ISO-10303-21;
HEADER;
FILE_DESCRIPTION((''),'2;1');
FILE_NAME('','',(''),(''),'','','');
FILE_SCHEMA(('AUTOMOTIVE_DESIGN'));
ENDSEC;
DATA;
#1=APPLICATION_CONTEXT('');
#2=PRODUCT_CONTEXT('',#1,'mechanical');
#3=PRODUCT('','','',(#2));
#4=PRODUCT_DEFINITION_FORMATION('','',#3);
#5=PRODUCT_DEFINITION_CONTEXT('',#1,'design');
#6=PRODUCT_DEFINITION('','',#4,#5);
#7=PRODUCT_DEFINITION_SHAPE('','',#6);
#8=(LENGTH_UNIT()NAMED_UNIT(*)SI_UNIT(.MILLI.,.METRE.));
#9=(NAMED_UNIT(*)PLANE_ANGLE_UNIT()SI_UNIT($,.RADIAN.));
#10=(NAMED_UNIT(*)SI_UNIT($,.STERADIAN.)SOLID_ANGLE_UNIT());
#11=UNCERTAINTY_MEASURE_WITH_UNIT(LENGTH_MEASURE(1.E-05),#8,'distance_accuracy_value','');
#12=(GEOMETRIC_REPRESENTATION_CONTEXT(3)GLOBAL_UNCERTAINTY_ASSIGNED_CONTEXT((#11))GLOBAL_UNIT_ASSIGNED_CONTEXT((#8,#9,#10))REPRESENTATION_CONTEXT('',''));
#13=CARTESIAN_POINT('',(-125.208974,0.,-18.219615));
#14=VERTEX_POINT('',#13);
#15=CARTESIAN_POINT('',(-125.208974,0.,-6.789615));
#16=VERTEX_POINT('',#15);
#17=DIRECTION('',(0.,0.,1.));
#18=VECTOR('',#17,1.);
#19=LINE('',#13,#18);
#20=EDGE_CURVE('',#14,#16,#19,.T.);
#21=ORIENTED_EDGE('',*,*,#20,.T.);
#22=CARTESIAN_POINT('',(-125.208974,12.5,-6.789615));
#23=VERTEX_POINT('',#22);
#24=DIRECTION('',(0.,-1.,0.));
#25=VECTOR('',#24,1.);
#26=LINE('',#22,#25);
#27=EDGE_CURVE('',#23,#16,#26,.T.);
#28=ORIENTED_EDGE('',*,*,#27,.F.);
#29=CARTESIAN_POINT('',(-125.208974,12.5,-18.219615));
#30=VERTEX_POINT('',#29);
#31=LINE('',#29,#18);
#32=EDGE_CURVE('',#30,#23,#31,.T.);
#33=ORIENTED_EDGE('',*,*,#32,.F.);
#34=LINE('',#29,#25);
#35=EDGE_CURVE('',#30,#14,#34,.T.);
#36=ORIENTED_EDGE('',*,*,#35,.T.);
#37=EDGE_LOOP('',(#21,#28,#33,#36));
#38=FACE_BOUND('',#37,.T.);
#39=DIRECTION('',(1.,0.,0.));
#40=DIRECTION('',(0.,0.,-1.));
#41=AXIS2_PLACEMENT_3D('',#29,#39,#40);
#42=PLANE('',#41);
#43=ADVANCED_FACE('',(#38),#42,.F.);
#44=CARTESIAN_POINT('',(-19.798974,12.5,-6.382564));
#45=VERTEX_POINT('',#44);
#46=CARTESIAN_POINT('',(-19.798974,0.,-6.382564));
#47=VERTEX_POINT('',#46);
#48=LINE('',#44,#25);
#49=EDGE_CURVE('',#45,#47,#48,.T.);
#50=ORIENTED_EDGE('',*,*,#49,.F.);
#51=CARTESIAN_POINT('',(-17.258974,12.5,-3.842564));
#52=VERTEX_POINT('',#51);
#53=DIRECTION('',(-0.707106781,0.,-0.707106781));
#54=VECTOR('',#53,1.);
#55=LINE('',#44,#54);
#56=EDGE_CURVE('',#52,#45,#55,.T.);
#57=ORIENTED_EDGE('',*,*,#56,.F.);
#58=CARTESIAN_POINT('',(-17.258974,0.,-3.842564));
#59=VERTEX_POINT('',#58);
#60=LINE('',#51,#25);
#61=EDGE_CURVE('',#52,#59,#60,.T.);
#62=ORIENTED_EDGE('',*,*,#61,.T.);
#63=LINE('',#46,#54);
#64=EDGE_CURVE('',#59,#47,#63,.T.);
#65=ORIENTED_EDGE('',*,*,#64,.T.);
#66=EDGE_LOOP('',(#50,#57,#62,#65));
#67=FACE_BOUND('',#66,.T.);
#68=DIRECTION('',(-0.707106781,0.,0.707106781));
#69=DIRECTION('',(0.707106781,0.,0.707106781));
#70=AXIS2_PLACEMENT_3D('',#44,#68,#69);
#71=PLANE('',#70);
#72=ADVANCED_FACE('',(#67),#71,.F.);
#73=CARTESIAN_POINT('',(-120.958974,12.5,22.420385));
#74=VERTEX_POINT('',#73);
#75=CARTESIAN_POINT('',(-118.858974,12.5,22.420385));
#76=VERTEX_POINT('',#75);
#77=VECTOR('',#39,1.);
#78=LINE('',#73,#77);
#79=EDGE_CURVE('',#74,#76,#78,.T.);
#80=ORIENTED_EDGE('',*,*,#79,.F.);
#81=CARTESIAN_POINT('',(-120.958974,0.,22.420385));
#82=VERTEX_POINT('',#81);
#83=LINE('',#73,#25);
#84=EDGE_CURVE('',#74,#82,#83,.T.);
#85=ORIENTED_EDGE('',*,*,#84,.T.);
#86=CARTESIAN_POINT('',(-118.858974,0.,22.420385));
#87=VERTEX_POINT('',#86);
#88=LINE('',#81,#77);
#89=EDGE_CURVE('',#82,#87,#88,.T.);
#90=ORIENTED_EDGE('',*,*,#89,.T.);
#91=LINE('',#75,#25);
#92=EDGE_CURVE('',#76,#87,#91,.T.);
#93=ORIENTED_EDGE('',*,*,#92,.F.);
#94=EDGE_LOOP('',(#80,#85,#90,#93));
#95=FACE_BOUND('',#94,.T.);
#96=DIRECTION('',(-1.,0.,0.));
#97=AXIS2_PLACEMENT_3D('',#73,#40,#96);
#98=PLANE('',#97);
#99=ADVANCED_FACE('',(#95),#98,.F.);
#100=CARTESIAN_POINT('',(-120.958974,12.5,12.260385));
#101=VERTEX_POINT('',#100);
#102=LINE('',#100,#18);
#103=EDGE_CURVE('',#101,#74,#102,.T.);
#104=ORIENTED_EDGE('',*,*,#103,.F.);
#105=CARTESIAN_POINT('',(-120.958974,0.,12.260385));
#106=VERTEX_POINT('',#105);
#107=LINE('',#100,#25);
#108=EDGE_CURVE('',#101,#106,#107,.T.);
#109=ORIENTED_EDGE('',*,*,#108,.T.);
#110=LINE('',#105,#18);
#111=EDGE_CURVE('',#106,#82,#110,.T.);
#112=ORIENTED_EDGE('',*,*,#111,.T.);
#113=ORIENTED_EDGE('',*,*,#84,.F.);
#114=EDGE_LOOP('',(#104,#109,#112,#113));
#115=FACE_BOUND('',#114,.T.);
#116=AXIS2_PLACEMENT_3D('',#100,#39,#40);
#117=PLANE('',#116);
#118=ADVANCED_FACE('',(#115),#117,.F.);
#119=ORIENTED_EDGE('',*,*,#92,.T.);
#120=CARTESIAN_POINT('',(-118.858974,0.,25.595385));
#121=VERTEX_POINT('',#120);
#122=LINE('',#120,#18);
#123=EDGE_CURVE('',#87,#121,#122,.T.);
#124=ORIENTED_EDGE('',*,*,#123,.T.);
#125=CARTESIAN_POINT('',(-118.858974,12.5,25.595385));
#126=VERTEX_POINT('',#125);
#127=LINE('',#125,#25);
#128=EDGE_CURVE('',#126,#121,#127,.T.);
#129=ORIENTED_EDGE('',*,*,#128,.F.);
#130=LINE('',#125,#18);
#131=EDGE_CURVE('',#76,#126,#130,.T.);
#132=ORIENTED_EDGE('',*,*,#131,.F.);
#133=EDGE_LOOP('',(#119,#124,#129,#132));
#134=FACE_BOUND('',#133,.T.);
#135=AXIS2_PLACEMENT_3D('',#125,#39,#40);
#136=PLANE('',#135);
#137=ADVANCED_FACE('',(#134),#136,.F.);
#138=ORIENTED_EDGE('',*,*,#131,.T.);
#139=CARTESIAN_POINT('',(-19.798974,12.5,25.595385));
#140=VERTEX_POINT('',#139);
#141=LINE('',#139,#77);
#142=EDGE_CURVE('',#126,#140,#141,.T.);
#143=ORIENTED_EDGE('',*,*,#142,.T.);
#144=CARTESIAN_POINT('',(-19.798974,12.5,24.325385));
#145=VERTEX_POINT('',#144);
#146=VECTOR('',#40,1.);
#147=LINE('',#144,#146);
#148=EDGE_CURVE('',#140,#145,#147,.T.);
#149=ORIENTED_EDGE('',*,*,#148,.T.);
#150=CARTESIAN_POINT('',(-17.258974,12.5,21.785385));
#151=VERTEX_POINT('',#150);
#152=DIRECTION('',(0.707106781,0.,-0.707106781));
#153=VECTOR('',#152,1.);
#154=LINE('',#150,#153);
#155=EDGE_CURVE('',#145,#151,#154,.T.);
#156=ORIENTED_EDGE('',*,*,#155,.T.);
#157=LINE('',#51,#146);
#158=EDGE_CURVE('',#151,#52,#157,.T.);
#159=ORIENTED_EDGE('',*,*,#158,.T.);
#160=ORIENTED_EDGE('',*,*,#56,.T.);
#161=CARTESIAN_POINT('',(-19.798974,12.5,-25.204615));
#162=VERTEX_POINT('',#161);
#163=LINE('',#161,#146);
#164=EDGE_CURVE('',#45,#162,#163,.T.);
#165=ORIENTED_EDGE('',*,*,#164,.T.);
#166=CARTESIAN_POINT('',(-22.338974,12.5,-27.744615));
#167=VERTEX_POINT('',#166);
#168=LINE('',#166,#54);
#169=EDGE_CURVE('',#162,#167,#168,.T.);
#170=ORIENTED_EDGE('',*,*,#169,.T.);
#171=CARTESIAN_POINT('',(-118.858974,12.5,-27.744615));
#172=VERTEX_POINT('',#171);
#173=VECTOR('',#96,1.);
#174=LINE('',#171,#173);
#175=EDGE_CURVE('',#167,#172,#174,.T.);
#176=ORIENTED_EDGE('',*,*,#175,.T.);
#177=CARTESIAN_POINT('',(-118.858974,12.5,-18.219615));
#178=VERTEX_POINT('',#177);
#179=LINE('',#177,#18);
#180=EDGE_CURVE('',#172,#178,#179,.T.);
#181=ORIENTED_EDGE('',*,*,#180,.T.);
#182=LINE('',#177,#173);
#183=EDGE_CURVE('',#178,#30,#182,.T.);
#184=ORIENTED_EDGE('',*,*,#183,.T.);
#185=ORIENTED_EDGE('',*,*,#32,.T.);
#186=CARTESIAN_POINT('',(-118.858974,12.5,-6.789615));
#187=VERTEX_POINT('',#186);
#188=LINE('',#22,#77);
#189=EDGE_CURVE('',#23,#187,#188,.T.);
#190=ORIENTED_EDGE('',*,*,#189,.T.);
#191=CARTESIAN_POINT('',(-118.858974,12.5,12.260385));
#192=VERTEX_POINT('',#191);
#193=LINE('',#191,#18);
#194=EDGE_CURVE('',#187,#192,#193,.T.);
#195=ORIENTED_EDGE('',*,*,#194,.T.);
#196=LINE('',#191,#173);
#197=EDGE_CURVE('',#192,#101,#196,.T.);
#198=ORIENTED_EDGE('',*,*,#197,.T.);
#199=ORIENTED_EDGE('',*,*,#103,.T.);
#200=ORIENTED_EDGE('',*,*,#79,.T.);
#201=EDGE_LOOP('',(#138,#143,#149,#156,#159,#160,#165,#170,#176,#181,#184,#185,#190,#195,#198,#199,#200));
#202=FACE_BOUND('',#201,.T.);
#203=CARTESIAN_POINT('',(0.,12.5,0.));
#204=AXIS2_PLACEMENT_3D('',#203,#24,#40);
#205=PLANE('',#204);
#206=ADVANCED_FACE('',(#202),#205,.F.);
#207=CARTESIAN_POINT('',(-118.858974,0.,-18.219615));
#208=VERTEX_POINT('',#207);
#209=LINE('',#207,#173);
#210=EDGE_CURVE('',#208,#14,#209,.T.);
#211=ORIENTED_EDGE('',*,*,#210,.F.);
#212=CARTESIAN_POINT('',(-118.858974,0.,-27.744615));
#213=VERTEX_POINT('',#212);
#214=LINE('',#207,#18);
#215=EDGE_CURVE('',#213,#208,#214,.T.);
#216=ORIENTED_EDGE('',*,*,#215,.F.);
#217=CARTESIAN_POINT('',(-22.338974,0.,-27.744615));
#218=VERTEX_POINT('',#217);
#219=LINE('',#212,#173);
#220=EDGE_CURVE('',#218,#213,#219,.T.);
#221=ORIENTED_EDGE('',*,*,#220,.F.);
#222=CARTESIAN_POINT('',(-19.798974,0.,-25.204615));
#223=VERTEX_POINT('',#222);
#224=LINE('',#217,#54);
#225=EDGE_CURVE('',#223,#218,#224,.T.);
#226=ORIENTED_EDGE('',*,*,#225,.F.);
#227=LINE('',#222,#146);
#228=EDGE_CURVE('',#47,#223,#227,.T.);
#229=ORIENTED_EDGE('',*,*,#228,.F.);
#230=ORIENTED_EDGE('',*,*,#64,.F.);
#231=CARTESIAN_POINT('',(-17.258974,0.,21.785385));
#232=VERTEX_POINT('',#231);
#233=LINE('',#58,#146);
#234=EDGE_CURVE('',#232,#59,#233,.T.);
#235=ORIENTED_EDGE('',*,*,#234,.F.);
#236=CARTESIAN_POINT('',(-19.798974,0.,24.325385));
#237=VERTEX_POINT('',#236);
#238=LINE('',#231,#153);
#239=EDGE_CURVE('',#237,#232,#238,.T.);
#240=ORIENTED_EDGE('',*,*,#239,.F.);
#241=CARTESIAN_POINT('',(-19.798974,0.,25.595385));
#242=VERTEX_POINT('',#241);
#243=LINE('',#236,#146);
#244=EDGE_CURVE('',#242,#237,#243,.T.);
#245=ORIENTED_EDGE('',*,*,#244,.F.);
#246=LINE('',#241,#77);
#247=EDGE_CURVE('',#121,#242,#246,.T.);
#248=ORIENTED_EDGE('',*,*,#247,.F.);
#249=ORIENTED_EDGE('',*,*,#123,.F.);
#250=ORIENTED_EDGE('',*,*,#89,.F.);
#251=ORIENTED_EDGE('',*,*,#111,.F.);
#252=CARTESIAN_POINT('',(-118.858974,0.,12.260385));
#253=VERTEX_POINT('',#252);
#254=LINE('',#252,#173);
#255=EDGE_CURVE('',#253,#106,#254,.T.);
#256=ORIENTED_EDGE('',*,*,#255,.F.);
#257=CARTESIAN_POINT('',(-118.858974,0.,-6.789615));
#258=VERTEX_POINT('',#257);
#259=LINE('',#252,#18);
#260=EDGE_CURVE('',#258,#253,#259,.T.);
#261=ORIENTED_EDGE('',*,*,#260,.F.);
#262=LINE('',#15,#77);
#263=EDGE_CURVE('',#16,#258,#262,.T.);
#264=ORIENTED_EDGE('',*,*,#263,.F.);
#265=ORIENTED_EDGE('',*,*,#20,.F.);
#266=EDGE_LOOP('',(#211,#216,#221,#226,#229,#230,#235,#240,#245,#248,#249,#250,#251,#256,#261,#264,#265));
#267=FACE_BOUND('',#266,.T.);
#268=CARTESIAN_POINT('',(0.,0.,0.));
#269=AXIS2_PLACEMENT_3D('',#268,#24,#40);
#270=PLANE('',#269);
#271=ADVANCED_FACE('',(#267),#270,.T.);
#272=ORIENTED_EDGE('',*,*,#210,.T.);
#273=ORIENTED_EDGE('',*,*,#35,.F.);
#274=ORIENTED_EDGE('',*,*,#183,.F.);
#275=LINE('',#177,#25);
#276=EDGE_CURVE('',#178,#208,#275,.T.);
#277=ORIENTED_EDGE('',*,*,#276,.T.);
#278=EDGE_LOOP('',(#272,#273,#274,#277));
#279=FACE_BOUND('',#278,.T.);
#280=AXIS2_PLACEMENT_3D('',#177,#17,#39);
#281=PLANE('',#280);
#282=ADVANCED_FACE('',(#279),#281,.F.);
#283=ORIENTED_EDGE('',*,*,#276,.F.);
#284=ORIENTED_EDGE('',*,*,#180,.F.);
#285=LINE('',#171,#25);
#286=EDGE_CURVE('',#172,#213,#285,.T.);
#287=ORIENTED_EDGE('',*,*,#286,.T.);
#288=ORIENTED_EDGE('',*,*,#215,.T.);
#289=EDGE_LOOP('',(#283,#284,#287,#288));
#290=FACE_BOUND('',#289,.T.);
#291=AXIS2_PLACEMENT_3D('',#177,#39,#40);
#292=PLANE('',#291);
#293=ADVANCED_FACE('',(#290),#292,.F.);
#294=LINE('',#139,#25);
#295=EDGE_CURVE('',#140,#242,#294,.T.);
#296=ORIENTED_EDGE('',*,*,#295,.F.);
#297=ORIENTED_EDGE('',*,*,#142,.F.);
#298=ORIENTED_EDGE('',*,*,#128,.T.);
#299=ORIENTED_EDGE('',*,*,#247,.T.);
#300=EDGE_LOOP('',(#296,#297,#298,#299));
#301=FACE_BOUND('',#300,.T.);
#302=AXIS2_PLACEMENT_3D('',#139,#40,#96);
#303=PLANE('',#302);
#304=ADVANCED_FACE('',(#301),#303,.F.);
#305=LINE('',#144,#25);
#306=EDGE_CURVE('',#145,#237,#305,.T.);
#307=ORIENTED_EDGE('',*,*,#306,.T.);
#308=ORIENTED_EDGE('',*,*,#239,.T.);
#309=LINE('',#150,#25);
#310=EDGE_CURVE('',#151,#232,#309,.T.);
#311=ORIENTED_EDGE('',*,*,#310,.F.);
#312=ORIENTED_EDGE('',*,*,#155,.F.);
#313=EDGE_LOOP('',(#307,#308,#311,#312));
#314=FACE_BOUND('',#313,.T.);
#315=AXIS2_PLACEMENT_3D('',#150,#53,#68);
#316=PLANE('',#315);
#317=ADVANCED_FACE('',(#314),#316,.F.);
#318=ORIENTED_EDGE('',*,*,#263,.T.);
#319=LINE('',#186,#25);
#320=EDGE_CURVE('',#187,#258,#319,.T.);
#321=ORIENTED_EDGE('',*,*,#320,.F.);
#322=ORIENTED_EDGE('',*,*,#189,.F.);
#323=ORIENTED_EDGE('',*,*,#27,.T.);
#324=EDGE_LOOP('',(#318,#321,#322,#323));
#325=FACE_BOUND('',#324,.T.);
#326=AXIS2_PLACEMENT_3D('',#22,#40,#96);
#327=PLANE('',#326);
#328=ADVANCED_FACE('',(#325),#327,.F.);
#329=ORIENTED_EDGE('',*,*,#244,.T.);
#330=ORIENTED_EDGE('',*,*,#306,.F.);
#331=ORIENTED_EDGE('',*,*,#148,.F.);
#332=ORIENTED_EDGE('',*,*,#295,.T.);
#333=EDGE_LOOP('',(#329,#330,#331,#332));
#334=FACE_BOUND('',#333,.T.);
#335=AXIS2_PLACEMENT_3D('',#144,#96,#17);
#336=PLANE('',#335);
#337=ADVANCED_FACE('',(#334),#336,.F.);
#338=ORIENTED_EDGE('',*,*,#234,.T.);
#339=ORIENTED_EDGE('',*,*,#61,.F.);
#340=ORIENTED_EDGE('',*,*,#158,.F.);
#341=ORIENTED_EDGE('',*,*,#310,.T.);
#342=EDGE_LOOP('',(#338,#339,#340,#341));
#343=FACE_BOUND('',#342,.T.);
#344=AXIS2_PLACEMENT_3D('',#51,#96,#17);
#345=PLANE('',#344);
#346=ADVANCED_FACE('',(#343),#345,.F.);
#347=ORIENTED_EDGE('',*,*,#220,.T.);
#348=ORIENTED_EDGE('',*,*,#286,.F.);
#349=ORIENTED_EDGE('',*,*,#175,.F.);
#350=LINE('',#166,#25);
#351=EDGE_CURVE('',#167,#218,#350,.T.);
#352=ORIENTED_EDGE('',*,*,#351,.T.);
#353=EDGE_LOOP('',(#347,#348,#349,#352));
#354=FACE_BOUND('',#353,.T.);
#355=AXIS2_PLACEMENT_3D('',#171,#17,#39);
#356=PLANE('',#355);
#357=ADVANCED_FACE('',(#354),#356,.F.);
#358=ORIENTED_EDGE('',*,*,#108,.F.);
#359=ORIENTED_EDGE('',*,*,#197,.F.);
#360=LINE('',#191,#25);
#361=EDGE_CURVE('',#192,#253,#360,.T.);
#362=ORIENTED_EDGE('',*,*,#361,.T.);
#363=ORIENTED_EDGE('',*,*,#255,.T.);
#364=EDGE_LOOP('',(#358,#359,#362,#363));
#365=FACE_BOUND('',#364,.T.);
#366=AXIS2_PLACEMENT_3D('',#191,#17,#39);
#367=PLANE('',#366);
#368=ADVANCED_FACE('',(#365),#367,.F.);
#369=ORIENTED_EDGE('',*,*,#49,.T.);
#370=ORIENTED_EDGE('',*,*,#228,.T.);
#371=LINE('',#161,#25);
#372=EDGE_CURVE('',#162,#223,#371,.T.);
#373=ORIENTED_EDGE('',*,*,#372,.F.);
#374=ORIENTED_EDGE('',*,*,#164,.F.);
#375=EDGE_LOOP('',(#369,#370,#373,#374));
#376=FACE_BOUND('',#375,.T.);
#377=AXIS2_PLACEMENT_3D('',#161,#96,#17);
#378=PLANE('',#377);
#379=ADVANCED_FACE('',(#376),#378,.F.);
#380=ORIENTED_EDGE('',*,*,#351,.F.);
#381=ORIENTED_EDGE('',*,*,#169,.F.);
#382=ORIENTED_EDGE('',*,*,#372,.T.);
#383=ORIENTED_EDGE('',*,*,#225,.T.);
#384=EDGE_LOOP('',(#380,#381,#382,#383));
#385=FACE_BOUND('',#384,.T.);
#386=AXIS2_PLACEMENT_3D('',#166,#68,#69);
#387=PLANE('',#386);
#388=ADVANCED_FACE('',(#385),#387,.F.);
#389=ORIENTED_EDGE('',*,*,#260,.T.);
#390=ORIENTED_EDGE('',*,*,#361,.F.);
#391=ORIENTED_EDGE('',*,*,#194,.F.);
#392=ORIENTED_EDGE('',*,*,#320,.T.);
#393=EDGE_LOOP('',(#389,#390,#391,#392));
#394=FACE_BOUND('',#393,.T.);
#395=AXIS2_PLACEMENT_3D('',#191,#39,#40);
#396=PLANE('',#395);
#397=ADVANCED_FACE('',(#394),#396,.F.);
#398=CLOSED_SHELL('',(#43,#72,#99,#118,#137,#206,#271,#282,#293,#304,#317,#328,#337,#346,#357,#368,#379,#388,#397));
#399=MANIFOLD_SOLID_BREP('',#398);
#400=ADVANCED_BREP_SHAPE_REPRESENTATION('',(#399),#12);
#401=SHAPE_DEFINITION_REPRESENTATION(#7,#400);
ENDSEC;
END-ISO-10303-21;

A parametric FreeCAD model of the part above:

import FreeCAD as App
import Part
import Sketcher
Q = App.Units.Quantity


def add_polygon(sketch, points):
    """Adds a closed chain of lines whose ends are joined by coincident constraints."""
    first, n = sketch.GeometryCount, len(points)
    for a, b in zip(points, points[1:] + points[:1]):
        sketch.addGeometry(Part.LineSegment(App.Vector(*a, 0), App.Vector(*b, 0)), False)
    for i in range(n):
        sketch.addConstraint(Sketcher.Constraint("Coincident", first + i, 2, first + (i + 1) % n, 1))

doc = App.newDocument("Part")
body = doc.addObject("PartDesign::Body", "Body")

sketch1 = doc.addObject("Sketcher::SketchObject", "Sketch")
body.addObject(sketch1)
sketch1.AttachmentSupport = (doc.XZ_Plane, [""])
sketch1.MapMode = "FlatFace"
add_polygon(sketch1, [(-118.9, 22.4), (-118.9, 25.6), (-19.8, 25.6), (-19.8, 24.3), (-17.3, 21.8), (-17.3, -3.8), (-19.8, -6.4), (-19.8, -25.2), (-22.3, -27.7), (-118.9, -27.7), (-118.9, -18.2), (-125.2, -18.2), (-125.2, -6.8), (-118.9, -6.8), (-118.9, 12.3), (-121, 12.3), (-121, 22.4)])
sketch1.addConstraint([
    Sketcher.Constraint("Vertical", 0),
    Sketcher.Constraint("Horizontal", 1),
    Sketcher.Constraint("Vertical", 2),
    Sketcher.Constraint("Vertical", 4),
    Sketcher.Constraint("Vertical", 6),
    Sketcher.Constraint("Horizontal", 8),
    Sketcher.Constraint("Vertical", 9),
    Sketcher.Constraint("Horizontal", 10),
    Sketcher.Constraint("Vertical", 11),
    Sketcher.Constraint("Horizontal", 12),
    Sketcher.Constraint("Vertical", 13),
    Sketcher.Constraint("Horizontal", 14),
    Sketcher.Constraint("Vertical", 15),
    Sketcher.Constraint("Horizontal", 16),
    Sketcher.Constraint("Perpendicular", 3, 5),
    Sketcher.Constraint("Parallel", 5, 7),
    Sketcher.Constraint("Vertical", 2, 2, 5, 2),
    Sketcher.Constraint("Vertical", 0, 2, 8, 2),
    Sketcher.Constraint("Vertical", 9, 2, 12, 2),
    Sketcher.Constraint("Equal", 3, 5),
    Sketcher.Constraint("Equal", 5, 7),
    Sketcher.Constraint("DistanceX", 1, 1, 1, 2, Q("3.9 in")),
    Sketcher.Constraint("DistanceX", 8, 2, 8, 1, Q("3.8 in")),
    Sketcher.Constraint("DistanceY", 15, 1, 15, 2, Q("0.4 in")),
    Sketcher.Constraint("DistanceY", 6, 2, 1, 2, Q("2 in")),
    Sketcher.Constraint("DistanceX", 10, 2, 10, 1, Q("0.25 in")),
    Sketcher.Constraint("DistanceY", 2, 2, 2, 1, Q("0.05 in")),
    Sketcher.Constraint("DistanceY", 11, 1, 11, 2, Q("0.45 in")),
    Sketcher.Constraint("DistanceY", 13, 1, 13, 2, Q("0.75 in")),
    Sketcher.Constraint("DistanceY", 0, 1, 0, 2, Q("0.125 in")),
    Sketcher.Constraint("DistanceX", 14, 2, 14, 1, 2.1),
    Sketcher.Constraint("DistanceY", 4, 2, 4, 1, 25.627949),
    Sketcher.Constraint("DistanceX", 0, 2, -1, 1, 118.858974),
    Sketcher.Constraint("DistanceY", -1, 1, 0, 2, 25.595385),
])
pad1 = doc.addObject("PartDesign::Pad", "Pad")
body.addObject(pad1)
pad1.Profile = sketch1
pad1.Length = 12.5
pad1.Reversed = True

doc.recompute()
